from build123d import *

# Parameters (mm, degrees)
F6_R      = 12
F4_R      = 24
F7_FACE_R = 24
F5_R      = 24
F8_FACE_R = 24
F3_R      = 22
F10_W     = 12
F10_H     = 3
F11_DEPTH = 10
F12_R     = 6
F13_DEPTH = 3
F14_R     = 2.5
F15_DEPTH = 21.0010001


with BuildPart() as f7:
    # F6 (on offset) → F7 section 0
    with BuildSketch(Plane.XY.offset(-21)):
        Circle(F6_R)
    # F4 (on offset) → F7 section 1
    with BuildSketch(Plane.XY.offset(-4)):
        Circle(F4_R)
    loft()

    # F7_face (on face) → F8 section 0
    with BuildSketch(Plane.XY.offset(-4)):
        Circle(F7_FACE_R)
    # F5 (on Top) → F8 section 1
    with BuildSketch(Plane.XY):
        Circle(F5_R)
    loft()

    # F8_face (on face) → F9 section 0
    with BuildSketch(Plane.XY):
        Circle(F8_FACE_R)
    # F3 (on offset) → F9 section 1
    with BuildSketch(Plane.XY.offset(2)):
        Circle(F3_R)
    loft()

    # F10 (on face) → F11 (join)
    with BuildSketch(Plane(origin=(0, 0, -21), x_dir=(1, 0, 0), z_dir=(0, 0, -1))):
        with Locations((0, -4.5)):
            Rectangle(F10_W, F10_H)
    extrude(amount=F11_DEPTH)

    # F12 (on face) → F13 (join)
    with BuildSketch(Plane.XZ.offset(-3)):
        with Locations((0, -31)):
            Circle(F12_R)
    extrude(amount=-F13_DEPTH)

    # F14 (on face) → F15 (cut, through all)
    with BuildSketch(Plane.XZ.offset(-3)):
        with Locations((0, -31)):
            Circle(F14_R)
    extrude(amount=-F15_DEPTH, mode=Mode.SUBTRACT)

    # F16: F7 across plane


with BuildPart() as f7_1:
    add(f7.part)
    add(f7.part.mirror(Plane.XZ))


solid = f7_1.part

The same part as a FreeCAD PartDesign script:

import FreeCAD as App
import Part
import Sketcher
from FreeCAD import Vector
Q = App.Units.Quantity

doc = App.newDocument("Part")
body = doc.addObject("PartDesign::Body", "Body")

# Sketch on XY plane
sketch1 = doc.addObject("Sketcher::SketchObject", "Sketch")
body.addObject(sketch1)
sketch1.AttachmentSupport = (doc.XY_Plane, [""])
sketch1.MapMode = "FlatFace"
sketch1.AttachmentOffset = App.Placement(Vector(0, 0, -21), App.Rotation())
sketch1.addGeometry(Part.Circle(Vector(0, 0, 0), Vector(0, 0, 1), 12), False)
sketch1.addConstraint(Sketcher.Constraint("Coincident", 0, 3, -1, 1))
sketch1.addConstraint(Sketcher.Constraint("Diameter", 0, Q("24 mm")))

# Sketch on XY plane
sketch2 = doc.addObject("Sketcher::SketchObject", "Sketch001")
body.addObject(sketch2)
sketch2.AttachmentSupport = (doc.XY_Plane, [""])
sketch2.MapMode = "FlatFace"
sketch2.AttachmentOffset = App.Placement(Vector(0, 0, -4), App.Rotation())
sketch2.addGeometry(Part.Circle(Vector(0, 0, 0), Vector(0, 0, 1), 24), False)
sketch2.addConstraint(Sketcher.Constraint("Coincident", 0, 3, -1, 1))
sketch2.addConstraint(Sketcher.Constraint("Diameter", 0, Q("48 mm")))

additiveloft = doc.addObject("PartDesign::AdditiveLoft", "AdditiveLoft")
body.addObject(additiveloft)
additiveloft.Profile = sketch1
additiveloft.Sections = [sketch2]

# Sketch on XY plane
sketch3 = doc.addObject("Sketcher::SketchObject", "Sketch002")
body.addObject(sketch3)
sketch3.AttachmentSupport = (doc.XY_Plane, [""])
sketch3.MapMode = "FlatFace"
sketch3.AttachmentOffset = App.Placement(Vector(0, 0, -4), App.Rotation())
sketch3.addGeometry(Part.Circle(Vector(0, 0, 0), Vector(0, 0, 1), 24), False)
sketch3.addConstraint(Sketcher.Constraint("Coincident", 0, 3, -1, 1))
sketch3.addConstraint(Sketcher.Constraint("Diameter", 0, Q("48 mm")))

# Sketch on XY plane
sketch4 = doc.addObject("Sketcher::SketchObject", "Sketch003")
body.addObject(sketch4)
sketch4.AttachmentSupport = (doc.XY_Plane, [""])
sketch4.MapMode = "FlatFace"
sketch4.addGeometry(Part.Circle(Vector(0, 0, 0), Vector(0, 0, 1), 24), False)
sketch4.addConstraint(Sketcher.Constraint("Coincident", 0, 3, -1, 1))
sketch4.addConstraint(Sketcher.Constraint("Diameter", 0, Q("48 mm")))

additiveloft2 = doc.addObject("PartDesign::AdditiveLoft", "AdditiveLoft001")
body.addObject(additiveloft2)
additiveloft2.Profile = sketch3
additiveloft2.Sections = [sketch4]

# Sketch on XY plane
sketch5 = doc.addObject("Sketcher::SketchObject", "Sketch004")
body.addObject(sketch5)
sketch5.AttachmentSupport = (doc.XY_Plane, [""])
sketch5.MapMode = "FlatFace"
sketch5.addGeometry(Part.Circle(Vector(0, 0, 0), Vector(0, 0, 1), 24), False)
sketch5.addConstraint(Sketcher.Constraint("Coincident", 0, 3, -1, 1))
sketch5.addConstraint(Sketcher.Constraint("Diameter", 0, Q("48 mm")))

# Sketch on XY plane
sketch6 = doc.addObject("Sketcher::SketchObject", "Sketch005")
body.addObject(sketch6)
sketch6.AttachmentSupport = (doc.XY_Plane, [""])
sketch6.MapMode = "FlatFace"
sketch6.AttachmentOffset = App.Placement(Vector(0, 0, 2), App.Rotation())
sketch6.addGeometry(Part.Circle(Vector(0, 0, 0), Vector(0, 0, 1), 22), False)
sketch6.addConstraint(Sketcher.Constraint("Coincident", 0, 3, -1, 1))
sketch6.addConstraint(Sketcher.Constraint("Diameter", 0, Q("44 mm")))

additiveloft3 = doc.addObject("PartDesign::AdditiveLoft", "AdditiveLoft002")
body.addObject(additiveloft3)
additiveloft3.Profile = sketch5
additiveloft3.Sections = [sketch6]

# Sketch on XY plane
sketch7 = doc.addObject("Sketcher::SketchObject", "Sketch006")
body.addObject(sketch7)
sketch7.AttachmentSupport = (doc.XY_Plane, [""])
sketch7.MapMode = "FlatFace"
sketch7.AttachmentOffset = App.Placement(Vector(0, 0, -21), App.Rotation())
sketch7.addGeometry(Part.LineSegment(Vector(-6, 3, 0), Vector(-6, 6, 0)), False)
sketch7.addGeometry(Part.LineSegment(Vector(-6, 6, 0), Vector(6, 6, 0)), False)
sketch7.addGeometry(Part.LineSegment(Vector(6, 6, 0), Vector(6, 3, 0)), False)
sketch7.addGeometry(Part.LineSegment(Vector(6, 3, 0), Vector(-6, 3, 0)), False)
sketch7.addConstraint(Sketcher.Constraint("Coincident", 0, 2, 1, 1))
sketch7.addConstraint(Sketcher.Constraint("Coincident", 1, 2, 2, 1))
sketch7.addConstraint(Sketcher.Constraint("Coincident", 2, 2, 3, 1))
sketch7.addConstraint(Sketcher.Constraint("Coincident", 3, 2, 0, 1))
sketch7.addConstraint(Sketcher.Constraint("Vertical", 0))
sketch7.addConstraint(Sketcher.Constraint("Horizontal", 1))
sketch7.addConstraint(Sketcher.Constraint("Vertical", 2))
sketch7.addConstraint(Sketcher.Constraint("Horizontal", 3))
sketch7.addConstraint(Sketcher.Constraint("DistanceX", 1, 1, 1, 2, Q("12 mm")))
sketch7.addConstraint(Sketcher.Constraint("DistanceY", 0, 1, 0, 2, Q("3 mm")))
sketch7.addConstraint(Sketcher.Constraint("DistanceX", 0, 2, -1, 1, Q("6 mm")))
sketch7.addConstraint(Sketcher.Constraint("DistanceY", -1, 1, 0, 2, Q("6 mm")))
pad1 = doc.addObject("PartDesign::Pad", "Pad")
body.addObject(pad1)
pad1.Profile = sketch7
pad1.Length = 10
pad1.Reversed = True

# Sketch on XZ plane
sketch8 = doc.addObject("Sketcher::SketchObject", "Sketch007")
body.addObject(sketch8)
sketch8.AttachmentSupport = (doc.XZ_Plane, [""])
sketch8.MapMode = "FlatFace"
sketch8.AttachmentOffset = App.Placement(Vector(0, 0, -3), App.Rotation())
sketch8.addGeometry(Part.Circle(Vector(0, -31, 0), Vector(0, 0, 1), 6), False)
sketch8.addConstraint(Sketcher.Constraint("PointOnObject", 0, 3, -2))
sketch8.addConstraint(Sketcher.Constraint("Diameter", 0, Q("12 mm")))
sketch8.addConstraint(Sketcher.Constraint("DistanceY", 0, 3, -1, 1, Q("31 mm")))
pad2 = doc.addObject("PartDesign::Pad", "Pad001")
body.addObject(pad2)
pad2.Profile = sketch8
pad2.Length = 3
pad2.Reversed = True

# Sketch on XZ plane
sketch9 = doc.addObject("Sketcher::SketchObject", "Sketch008")
body.addObject(sketch9)
sketch9.AttachmentSupport = (doc.XZ_Plane, [""])
sketch9.MapMode = "FlatFace"
sketch9.AttachmentOffset = App.Placement(Vector(0, 0, -3), App.Rotation())
sketch9.addGeometry(Part.Circle(Vector(0, -31, 0), Vector(0, 0, 1), 2.5), False)
sketch9.addConstraint(Sketcher.Constraint("PointOnObject", 0, 3, -2))
sketch9.addConstraint(Sketcher.Constraint("Diameter", 0, Q("5 mm")))
sketch9.addConstraint(Sketcher.Constraint("DistanceY", 0, 3, -1, 1, Q("31 mm")))
pocket1 = doc.addObject("PartDesign::Pocket", "Pocket")
body.addObject(pocket1)
pocket1.Profile = sketch9
pocket1.Type = "ThroughAll"
body2 = doc.addObject("PartDesign::Body", "Body001")
doc.recompute()

body2.BaseFeature = body
doc.recompute()

mirroring = doc.addObject("Part::Mirroring", "Mirroring")
mirroring.Source = body
mirroring.Base = Vector(0, 0, 0)
mirroring.Normal = Vector(0, -1, 0)
body3 = doc.addObject("PartDesign::Body", "Body002")
body3.BaseFeature = mirroring
boolean = doc.addObject("PartDesign::Boolean", "Boolean")
body2.addObject(boolean)
boolean.Type = "Fuse"
boolean.addObjects([body3])
doc.recompute()
mirroring.Visibility = False

doc.recompute()
